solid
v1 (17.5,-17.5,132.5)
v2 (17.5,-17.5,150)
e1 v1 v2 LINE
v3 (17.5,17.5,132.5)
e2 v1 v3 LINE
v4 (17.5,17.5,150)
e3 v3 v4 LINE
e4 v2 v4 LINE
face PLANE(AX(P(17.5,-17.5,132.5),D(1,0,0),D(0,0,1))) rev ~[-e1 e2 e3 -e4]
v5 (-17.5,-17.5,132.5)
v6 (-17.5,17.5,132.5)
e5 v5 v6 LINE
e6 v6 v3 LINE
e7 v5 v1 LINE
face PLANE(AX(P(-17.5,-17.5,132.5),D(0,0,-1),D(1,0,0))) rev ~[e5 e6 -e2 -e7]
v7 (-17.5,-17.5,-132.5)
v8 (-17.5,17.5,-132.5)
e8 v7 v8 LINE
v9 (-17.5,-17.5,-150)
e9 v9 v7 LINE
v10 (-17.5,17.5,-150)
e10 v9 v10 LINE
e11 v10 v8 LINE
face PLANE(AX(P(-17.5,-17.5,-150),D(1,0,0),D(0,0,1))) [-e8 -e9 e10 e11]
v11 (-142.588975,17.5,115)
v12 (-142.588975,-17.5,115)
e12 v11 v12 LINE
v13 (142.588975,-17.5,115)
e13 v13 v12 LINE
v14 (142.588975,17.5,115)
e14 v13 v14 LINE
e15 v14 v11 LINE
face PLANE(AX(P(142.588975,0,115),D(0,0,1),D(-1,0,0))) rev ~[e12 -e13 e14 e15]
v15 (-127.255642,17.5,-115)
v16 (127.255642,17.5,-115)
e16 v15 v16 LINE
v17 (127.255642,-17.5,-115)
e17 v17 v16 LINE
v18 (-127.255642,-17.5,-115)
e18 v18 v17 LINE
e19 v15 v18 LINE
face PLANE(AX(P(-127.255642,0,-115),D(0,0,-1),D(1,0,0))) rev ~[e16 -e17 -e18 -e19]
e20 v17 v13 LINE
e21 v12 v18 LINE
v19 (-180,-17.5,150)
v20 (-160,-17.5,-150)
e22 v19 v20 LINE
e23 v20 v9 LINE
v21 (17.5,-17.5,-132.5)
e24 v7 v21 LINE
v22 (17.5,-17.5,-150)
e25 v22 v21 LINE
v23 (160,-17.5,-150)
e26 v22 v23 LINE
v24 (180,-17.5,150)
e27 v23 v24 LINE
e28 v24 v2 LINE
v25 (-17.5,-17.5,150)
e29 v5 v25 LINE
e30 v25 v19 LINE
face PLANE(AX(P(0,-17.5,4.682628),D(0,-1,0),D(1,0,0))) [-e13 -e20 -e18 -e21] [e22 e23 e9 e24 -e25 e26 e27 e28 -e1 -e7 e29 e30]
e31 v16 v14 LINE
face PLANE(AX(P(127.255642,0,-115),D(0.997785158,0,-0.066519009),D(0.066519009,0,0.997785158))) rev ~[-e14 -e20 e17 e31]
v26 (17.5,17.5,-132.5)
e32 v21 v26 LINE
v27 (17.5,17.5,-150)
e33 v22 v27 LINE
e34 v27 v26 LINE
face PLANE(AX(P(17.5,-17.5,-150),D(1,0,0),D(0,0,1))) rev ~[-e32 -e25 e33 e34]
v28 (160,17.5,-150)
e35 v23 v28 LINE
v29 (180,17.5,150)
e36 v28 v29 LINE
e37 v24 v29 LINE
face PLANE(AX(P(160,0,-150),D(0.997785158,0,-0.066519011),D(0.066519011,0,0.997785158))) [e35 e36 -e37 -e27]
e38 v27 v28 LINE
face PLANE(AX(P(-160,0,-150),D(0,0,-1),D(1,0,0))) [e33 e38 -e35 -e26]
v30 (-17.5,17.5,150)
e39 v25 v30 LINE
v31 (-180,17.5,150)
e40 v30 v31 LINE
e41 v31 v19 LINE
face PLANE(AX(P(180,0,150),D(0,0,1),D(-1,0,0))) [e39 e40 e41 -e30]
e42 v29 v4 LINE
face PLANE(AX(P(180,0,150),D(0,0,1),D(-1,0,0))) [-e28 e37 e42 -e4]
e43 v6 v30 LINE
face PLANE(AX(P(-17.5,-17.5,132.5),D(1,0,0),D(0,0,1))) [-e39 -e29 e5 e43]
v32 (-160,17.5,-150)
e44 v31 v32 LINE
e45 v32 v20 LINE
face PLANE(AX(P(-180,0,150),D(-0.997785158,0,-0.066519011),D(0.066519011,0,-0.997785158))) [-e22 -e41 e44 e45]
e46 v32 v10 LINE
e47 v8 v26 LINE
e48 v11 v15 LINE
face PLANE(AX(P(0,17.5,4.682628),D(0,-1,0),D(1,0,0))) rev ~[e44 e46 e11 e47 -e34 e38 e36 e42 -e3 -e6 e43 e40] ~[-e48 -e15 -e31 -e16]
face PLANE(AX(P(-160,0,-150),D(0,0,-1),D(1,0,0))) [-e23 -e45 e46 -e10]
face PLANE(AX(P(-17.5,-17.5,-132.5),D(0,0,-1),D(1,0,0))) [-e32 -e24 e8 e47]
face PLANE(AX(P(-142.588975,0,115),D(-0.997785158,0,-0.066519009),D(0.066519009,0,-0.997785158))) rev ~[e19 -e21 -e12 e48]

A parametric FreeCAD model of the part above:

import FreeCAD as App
import Part
import Sketcher
from FreeCAD import Vector
Q = App.Units.Quantity


def add_polygon(sketch, points):
    """Adds a closed chain of lines whose ends are joined by coincident constraints."""
    first, n = sketch.GeometryCount, len(points)
    for a, b in zip(points, points[1:] + points[:1]):
        sketch.addGeometry(Part.LineSegment(App.Vector(*a, 0), App.Vector(*b, 0)), False)
    for i in range(n):
        sketch.addConstraint(Sketcher.Constraint("Coincident", first + i, 2, first + (i + 1) % n, 1))

doc = App.newDocument("Part")
body = doc.addObject("PartDesign::Body", "Body")

sketch1 = doc.addObject("Sketcher::SketchObject", "Sketch")
body.addObject(sketch1)
sketch1.AttachmentSupport = (doc.XZ_Plane, [""])
sketch1.MapMode = "FlatFace"
add_polygon(sketch1, [(180, 150), (-180, 150), (-160, -150), (160, -150)])
sketch1.addConstraint([
    Sketcher.Constraint("Horizontal", 0),
    Sketcher.Constraint("Horizontal", 2),
    Sketcher.Constraint("Equal", 1, 3),
    Sketcher.Constraint("DistanceX", 0, 2, 0, 1, Q("360 mm")),
    Sketcher.Constraint("DistanceX", 2, 1, 2, 2, Q("320 mm")),
    Sketcher.Constraint("DistanceX", 0, 2, -1, 1, Q("180 mm")),
    Sketcher.Constraint("DistanceY", -1, 1, 0, 2, Q("150 mm")),
    Sketcher.Constraint("DistanceY", 1, 2, -1, 1, Q("150 mm")),
])
pad1 = doc.addObject("PartDesign::Pad", "Pad")
body.addObject(pad1)
pad1.Profile = sketch1
pad1.Length = 35
pad1.Midplane = True

sketch2 = doc.addObject("Sketcher::SketchObject", "Sketch001")
body.addObject(sketch2)
sketch2.AttachmentSupport = (doc.XZ_Plane, [""])
sketch2.MapMode = "FlatFace"
add_polygon(sketch2, [(142.588975, 115), (-142.588975, 115), (-127.255642, -115), (127.255642, -115)])
sketch2.addConstraint([
    Sketcher.Constraint("Horizontal", 0),
    Sketcher.Constraint("Horizontal", 2),
    Sketcher.Constraint("Equal", 1, 3),
    Sketcher.Constraint("DistanceY", -1, 1, 0, 2, Q("115 mm")),
    Sketcher.Constraint("DistanceY", 1, 2, -1, 1, Q("115 mm")),
    Sketcher.Constraint("DistanceX", 0, 2, 0, 1, Q("285.17795 mm")),
    Sketcher.Constraint("DistanceX", 2, 1, 2, 2, Q("254.511284 mm")),
    Sketcher.Constraint("DistanceX", 1, 2, -1, 1, Q("127.255642 mm")),
])
pocket1 = doc.addObject("PartDesign::Pocket", "Pocket")
body.addObject(pocket1)
pocket1.Profile = sketch2
pocket1.Length = 35
pocket1.Midplane = True

sketch3 = doc.addObject("Sketcher::SketchObject", "Sketch002")
body.addObject(sketch3)
sketch3.AttachmentSupport = (doc.XZ_Plane, [""])
sketch3.MapMode = "FlatFace"
sketch3.AttachmentOffset = App.Placement(Vector(0, 0, 17.5), App.Rotation())
add_polygon(sketch3, [(-17.5, -132.5), (-17.5, -150), (17.5, -150), (17.5, -132.5)])
sketch3.addConstraint([
    Sketcher.Constraint("Vertical", 0),
    Sketcher.Constraint("Horizontal", 1),
    Sketcher.Constraint("Vertical", 2),
    Sketcher.Constraint("Horizontal", 3),
    Sketcher.Constraint("DistanceX", 1, 1, 1, 2, Q("35 mm")),
    Sketcher.Constraint("DistanceY", 0, 2, 0, 1, Q("17.5 mm")),
    Sketcher.Constraint("DistanceY", 0, 2, -1, 1, Q("150 mm")),
    Sketcher.Constraint("DistanceX", 0, 2, -1, 1, Q("17.5 mm")),
])
pocket2 = doc.addObject("PartDesign::Pocket", "Pocket001")
body.addObject(pocket2)
pocket2.Profile = sketch3
pocket2.Length = 35

sketch4 = doc.addObject("Sketcher::SketchObject", "Sketch003")
body.addObject(sketch4)
sketch4.AttachmentSupport = (doc.XZ_Plane, [""])
sketch4.MapMode = "FlatFace"
sketch4.AttachmentOffset = App.Placement(Vector(0, 0, 17.5), App.Rotation())
add_polygon(sketch4, [(-17.5, 150), (-17.5, 132.5), (17.5, 132.5), (17.5, 150)])
sketch4.addConstraint([
    Sketcher.Constraint("Vertical", 0),
    Sketcher.Constraint("Horizontal", 1),
    Sketcher.Constraint("Vertical", 2),
    Sketcher.Constraint("Horizontal", 3),
    Sketcher.Constraint("DistanceX", 1, 1, 1, 2, Q("35 mm")),
    Sketcher.Constraint("DistanceY", 0, 2, 0, 1, Q("17.5 mm")),
    Sketcher.Constraint("DistanceY", -1, 1, 2, 2, Q("150 mm")),
    Sketcher.Constraint("DistanceX", 0, 2, -1, 1, Q("17.5 mm")),
])
pocket3 = doc.addObject("PartDesign::Pocket", "Pocket002")
body.addObject(pocket3)
pocket3.Profile = sketch4
pocket3.Length = 35

doc.recompute()
